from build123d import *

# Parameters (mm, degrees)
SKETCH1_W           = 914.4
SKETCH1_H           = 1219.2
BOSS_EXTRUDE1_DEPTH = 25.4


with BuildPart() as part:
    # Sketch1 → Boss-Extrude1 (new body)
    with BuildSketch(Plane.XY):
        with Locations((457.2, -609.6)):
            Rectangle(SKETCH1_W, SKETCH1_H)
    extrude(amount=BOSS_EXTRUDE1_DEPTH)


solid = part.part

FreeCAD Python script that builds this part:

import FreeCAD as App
import Part
import Sketcher

V = App.Vector
Q = App.Units.Quantity


def add_polygon(sketch, points):
    """Adds a closed chain of lines whose ends are joined by coincident constraints."""
    first, n = sketch.GeometryCount, len(points)
    for a, b in zip(points, points[1:] + points[:1]):
        sketch.addGeometry(Part.LineSegment(App.Vector(*a, 0), App.Vector(*b, 0)), False)
    for i in range(n):
        sketch.addConstraint(Sketcher.Constraint("Coincident", first + i, 2, first + (i + 1) % n, 1))

doc = App.newDocument("Part")
body = doc.addObject("PartDesign::Body", "Body")

# Sketch on XY plane
sketch1 = doc.addObject("Sketcher::SketchObject", "Sketch")
body.addObject(sketch1)
sketch1.AttachmentSupport = (doc.XY_Plane, [""])
sketch1.MapMode = "FlatFace"
add_polygon(sketch1, [(0, 0), (0, -1219), (914, -1219), (914, 0)])  # lines 0-3
sketch1.addConstraint([
    Sketcher.Constraint("Vertical", 0),
    Sketcher.Constraint("Horizontal", 1),
    Sketcher.Constraint("Vertical", 2),
    Sketcher.Constraint("Horizontal", 3),
    Sketcher.Constraint("Coincident", 3, 2, -1, 1),
    Sketcher.Constraint("DistanceX", 1, 1, 1, 2, Q("36 in")),
    Sketcher.Constraint("DistanceY", 0, 2, 0, 1, Q("48 in")),
])
pad1 = doc.addObject("PartDesign::Pad", "Pad")
body.addObject(pad1)
pad1.Profile = sketch1
pad1.Length = Q("1 in")

doc.recompute()
